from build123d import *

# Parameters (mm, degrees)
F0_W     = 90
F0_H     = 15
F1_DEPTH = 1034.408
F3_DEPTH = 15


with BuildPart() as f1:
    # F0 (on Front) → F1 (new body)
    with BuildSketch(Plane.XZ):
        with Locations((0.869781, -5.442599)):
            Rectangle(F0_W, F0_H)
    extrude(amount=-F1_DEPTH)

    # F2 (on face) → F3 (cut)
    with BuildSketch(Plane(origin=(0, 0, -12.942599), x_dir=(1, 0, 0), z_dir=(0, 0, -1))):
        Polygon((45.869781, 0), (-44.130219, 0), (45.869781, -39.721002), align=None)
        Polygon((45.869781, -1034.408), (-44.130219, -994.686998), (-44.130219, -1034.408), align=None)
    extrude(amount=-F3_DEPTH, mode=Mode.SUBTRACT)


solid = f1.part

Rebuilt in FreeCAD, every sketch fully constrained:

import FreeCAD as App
import Part
import Sketcher

V = App.Vector

doc = App.newDocument("Part")
body = doc.addObject("PartDesign::Body", "Body")

sketch1 = body.newObject("Sketcher::SketchObject", "Sketch")
sketch1.AttachmentSupport = (doc.getObject("XZ_Plane"), [""])
sketch1.MapMode = "FlatFace"
sketch1.addGeometry([
    Part.LineSegment(V(-44, 2, 0), V(-44, -13, 0)),
    Part.LineSegment(V(-44, -13, 0), V(46, -13, 0)),
    Part.LineSegment(V(46, -13, 0), V(46, 2, 0)),
    Part.LineSegment(V(46, 2, 0), V(-44, 2, 0)),
], False)
sketch1.addConstraint([
    Sketcher.Constraint("Coincident", 0, 2, 1, 1),
    Sketcher.Constraint("Coincident", 1, 2, 2, 1),
    Sketcher.Constraint("Coincident", 2, 2, 3, 1),
    Sketcher.Constraint("Coincident", 3, 2, 0, 1),
    Sketcher.Constraint("Vertical", 0),
    Sketcher.Constraint("Horizontal", 1),
    Sketcher.Constraint("Vertical", 2),
    Sketcher.Constraint("Horizontal", 3),
    Sketcher.Constraint("DistanceX", 1, 1, 1, 2, 90.0),
    Sketcher.Constraint("DistanceY", 0, 2, 0, 1, 15.0),
    Sketcher.Constraint("DistanceY", 0, 2, -1, 1, 12.942599),
    Sketcher.Constraint("DistanceX", 0, 2, -1, 1, 44.130219),
])
pad1 = body.newObject("PartDesign::Pad", "Pad")
pad1.Profile = sketch1
pad1.Length = 1034.408
pad1.Reversed = True

sketch2 = body.newObject("Sketcher::SketchObject", "Sketch001")
sketch2.AttachmentSupport = (doc.getObject("XY_Plane"), [""])
sketch2.MapMode = "FlatFace"
sketch2.AttachmentOffset = App.Placement(V(0, 0, -12.942599), App.Rotation())
sketch2.addGeometry([
    Part.LineSegment(V(46, 0, 0), V(-44, 0, 0)),
    Part.LineSegment(V(-44, 0, 0), V(46, 40, 0)),
    Part.LineSegment(V(46, 40, 0), V(46, 0, 0)),
    Part.LineSegment(V(46, 1034, 0), V(-44, 995, 0)),
    Part.LineSegment(V(-44, 995, 0), V(-44, 1034, 0)),
    Part.LineSegment(V(-44, 1034, 0), V(46, 1034, 0)),
], False)
sketch2.addConstraint([
    Sketcher.Constraint("Coincident", 0, 2, 1, 1),
    Sketcher.Constraint("Coincident", 1, 2, 2, 1),
    Sketcher.Constraint("Coincident", 2, 2, 0, 1),
    Sketcher.Constraint("Coincident", 3, 2, 4, 1),
    Sketcher.Constraint("Coincident", 4, 2, 5, 1),
    Sketcher.Constraint("Coincident", 5, 2, 3, 1),
    Sketcher.Constraint("Horizontal", 0),
    Sketcher.Constraint("Vertical", 2),
    Sketcher.Constraint("Vertical", 4),
    Sketcher.Constraint("Horizontal", 5),
    Sketcher.Constraint("PointOnObject", 0, 2, -1),
    Sketcher.Constraint("Parallel", 1, 3),
    Sketcher.Constraint("Vertical", 0, 2, 3, 2),
    Sketcher.Constraint("Vertical", 2, 2, 5, 2),
    Sketcher.Constraint("DistanceX", 0, 2, 0, 1, 90.0),
    Sketcher.Constraint("DistanceY", 4, 1, 4, 2, 39.721002),
    Sketcher.Constraint("DistanceY", -1, 1, 3, 2, 994.686998),
    Sketcher.Constraint("DistanceX", 0, 2, -1, 1, 44.130219),
])
pocket1 = body.newObject("PartDesign::Pocket", "Pocket")
pocket1.Profile = sketch2
pocket1.Length = 15
pocket1.Reversed = True

doc.recompute()
